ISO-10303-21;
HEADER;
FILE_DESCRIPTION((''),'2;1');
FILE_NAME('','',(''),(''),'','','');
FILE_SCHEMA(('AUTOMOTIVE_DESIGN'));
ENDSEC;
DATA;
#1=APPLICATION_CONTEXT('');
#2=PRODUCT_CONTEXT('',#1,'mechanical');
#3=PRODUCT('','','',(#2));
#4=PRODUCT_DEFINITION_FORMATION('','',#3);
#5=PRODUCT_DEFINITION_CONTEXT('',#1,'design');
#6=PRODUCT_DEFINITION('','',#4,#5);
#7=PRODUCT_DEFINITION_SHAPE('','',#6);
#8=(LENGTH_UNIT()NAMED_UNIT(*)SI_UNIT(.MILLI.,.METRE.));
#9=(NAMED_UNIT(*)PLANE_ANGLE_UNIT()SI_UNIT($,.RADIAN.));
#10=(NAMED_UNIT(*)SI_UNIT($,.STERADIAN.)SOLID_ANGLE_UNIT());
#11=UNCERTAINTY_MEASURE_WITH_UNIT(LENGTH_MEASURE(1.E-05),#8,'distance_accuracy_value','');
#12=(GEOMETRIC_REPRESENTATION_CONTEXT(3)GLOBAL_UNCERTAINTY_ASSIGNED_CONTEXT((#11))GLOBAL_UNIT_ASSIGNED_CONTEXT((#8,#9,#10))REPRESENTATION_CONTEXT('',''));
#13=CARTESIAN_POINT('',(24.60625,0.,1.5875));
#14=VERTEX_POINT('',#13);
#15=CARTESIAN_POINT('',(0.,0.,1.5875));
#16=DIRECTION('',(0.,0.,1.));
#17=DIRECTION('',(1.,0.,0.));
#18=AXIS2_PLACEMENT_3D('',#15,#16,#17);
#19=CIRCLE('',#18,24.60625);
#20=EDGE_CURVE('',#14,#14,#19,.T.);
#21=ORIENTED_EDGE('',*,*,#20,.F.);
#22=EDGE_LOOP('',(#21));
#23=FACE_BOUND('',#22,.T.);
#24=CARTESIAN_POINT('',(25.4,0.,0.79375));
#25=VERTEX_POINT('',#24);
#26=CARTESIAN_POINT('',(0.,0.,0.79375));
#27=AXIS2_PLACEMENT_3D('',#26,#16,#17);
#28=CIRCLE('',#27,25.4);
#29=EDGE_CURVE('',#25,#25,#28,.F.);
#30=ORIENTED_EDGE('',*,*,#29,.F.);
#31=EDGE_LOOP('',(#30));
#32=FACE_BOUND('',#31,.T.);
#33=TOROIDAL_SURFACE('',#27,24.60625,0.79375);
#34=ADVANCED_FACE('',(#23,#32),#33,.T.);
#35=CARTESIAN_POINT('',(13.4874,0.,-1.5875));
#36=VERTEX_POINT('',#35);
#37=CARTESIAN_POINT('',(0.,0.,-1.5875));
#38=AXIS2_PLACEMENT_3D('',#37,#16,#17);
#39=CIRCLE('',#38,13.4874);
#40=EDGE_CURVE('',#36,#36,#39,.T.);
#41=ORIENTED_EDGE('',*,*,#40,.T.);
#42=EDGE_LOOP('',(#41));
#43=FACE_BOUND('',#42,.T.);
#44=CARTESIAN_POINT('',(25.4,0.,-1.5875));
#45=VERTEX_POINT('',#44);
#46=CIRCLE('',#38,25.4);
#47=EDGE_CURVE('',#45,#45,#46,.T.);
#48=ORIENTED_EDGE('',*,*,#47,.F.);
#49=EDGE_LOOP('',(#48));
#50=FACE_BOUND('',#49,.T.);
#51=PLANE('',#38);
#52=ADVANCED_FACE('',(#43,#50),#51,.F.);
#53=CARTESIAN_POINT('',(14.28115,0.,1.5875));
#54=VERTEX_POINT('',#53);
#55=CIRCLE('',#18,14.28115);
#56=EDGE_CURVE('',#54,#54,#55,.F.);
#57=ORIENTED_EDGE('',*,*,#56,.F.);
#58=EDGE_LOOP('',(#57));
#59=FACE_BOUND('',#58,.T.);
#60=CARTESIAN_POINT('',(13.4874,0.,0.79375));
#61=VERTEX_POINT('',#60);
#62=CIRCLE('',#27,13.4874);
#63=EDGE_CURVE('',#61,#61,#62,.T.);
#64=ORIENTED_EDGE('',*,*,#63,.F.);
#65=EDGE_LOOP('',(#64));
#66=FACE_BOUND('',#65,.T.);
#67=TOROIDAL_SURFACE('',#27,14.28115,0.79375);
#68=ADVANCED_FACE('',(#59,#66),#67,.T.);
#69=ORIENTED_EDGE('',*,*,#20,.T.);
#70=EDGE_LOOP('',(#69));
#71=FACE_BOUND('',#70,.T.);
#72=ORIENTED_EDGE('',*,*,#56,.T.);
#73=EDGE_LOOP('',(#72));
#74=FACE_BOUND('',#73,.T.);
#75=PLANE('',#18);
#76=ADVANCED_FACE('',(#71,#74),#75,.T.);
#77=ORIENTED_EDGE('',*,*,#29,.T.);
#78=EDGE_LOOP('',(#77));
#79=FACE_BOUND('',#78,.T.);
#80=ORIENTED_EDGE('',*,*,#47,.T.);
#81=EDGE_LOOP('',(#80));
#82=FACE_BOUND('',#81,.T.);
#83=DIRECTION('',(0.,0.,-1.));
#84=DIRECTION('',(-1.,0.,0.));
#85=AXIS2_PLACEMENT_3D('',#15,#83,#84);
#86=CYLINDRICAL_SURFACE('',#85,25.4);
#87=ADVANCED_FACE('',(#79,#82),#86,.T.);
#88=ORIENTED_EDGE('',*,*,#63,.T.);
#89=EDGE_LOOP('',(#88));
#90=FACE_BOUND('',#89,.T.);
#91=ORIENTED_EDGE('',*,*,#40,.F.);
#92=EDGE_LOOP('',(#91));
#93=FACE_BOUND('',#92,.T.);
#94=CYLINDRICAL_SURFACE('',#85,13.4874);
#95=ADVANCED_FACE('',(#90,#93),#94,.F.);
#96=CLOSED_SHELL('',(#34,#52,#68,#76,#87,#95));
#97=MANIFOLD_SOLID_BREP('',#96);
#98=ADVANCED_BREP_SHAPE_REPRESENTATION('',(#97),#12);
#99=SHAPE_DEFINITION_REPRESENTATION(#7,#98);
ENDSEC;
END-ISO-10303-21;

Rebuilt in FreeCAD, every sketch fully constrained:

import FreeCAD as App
import Part
import Sketcher
from FreeCAD import Vector
Q = App.Units.Quantity


def edges_at(feature, points):
    """Names of the edges that pass closest to the given points."""
    edges = feature.Shape.Edges
    near = lambda p: min(range(len(edges)), key=lambda i: edges[i].distToShape(Part.Vertex(*p))[0])
    return sorted({f"Edge{near(p) + 1}" for p in points})

doc = App.newDocument("Part")
body = doc.addObject("PartDesign::Body", "Body")

sketch1 = doc.addObject("Sketcher::SketchObject", "Sketch")
body.addObject(sketch1)
sketch1.AttachmentSupport = (doc.XY_Plane, [""])
sketch1.MapMode = "FlatFace"
sketch1.addGeometry(Part.Circle(Vector(0, 0, 0), Vector(0, 0, 1), 25.4), False)
sketch1.addGeometry(Part.Circle(Vector(0, 0, 0), Vector(0, 0, 1), 13.4874), False)
sketch1.addConstraint(Sketcher.Constraint("Coincident", 0, 3, -1, 1))
sketch1.addConstraint(Sketcher.Constraint("Coincident", 1, 3, -1, 1))
sketch1.addConstraint(Sketcher.Constraint("Diameter", 0, Q("2 in")))
sketch1.addConstraint(Sketcher.Constraint("Diameter", 1, Q("1.062 in")))
pad1 = doc.addObject("PartDesign::Pad", "Pad")
body.addObject(pad1)
pad1.Profile = sketch1
pad1.Type = "TwoLengths"
pad1.Length = Q("0.0625 in")
pad1.Length2 = Q("0.0625 in")
doc.recompute()

fillet = doc.addObject("PartDesign::Fillet", "Fillet")
body.addObject(fillet)
fillet.Base = (pad1, edges_at(pad1, [(-25.4, 0, 1.587), (-13.487, 0, 1.587)]))
fillet.Radius = Q("0.03125 in")

doc.recompute()
